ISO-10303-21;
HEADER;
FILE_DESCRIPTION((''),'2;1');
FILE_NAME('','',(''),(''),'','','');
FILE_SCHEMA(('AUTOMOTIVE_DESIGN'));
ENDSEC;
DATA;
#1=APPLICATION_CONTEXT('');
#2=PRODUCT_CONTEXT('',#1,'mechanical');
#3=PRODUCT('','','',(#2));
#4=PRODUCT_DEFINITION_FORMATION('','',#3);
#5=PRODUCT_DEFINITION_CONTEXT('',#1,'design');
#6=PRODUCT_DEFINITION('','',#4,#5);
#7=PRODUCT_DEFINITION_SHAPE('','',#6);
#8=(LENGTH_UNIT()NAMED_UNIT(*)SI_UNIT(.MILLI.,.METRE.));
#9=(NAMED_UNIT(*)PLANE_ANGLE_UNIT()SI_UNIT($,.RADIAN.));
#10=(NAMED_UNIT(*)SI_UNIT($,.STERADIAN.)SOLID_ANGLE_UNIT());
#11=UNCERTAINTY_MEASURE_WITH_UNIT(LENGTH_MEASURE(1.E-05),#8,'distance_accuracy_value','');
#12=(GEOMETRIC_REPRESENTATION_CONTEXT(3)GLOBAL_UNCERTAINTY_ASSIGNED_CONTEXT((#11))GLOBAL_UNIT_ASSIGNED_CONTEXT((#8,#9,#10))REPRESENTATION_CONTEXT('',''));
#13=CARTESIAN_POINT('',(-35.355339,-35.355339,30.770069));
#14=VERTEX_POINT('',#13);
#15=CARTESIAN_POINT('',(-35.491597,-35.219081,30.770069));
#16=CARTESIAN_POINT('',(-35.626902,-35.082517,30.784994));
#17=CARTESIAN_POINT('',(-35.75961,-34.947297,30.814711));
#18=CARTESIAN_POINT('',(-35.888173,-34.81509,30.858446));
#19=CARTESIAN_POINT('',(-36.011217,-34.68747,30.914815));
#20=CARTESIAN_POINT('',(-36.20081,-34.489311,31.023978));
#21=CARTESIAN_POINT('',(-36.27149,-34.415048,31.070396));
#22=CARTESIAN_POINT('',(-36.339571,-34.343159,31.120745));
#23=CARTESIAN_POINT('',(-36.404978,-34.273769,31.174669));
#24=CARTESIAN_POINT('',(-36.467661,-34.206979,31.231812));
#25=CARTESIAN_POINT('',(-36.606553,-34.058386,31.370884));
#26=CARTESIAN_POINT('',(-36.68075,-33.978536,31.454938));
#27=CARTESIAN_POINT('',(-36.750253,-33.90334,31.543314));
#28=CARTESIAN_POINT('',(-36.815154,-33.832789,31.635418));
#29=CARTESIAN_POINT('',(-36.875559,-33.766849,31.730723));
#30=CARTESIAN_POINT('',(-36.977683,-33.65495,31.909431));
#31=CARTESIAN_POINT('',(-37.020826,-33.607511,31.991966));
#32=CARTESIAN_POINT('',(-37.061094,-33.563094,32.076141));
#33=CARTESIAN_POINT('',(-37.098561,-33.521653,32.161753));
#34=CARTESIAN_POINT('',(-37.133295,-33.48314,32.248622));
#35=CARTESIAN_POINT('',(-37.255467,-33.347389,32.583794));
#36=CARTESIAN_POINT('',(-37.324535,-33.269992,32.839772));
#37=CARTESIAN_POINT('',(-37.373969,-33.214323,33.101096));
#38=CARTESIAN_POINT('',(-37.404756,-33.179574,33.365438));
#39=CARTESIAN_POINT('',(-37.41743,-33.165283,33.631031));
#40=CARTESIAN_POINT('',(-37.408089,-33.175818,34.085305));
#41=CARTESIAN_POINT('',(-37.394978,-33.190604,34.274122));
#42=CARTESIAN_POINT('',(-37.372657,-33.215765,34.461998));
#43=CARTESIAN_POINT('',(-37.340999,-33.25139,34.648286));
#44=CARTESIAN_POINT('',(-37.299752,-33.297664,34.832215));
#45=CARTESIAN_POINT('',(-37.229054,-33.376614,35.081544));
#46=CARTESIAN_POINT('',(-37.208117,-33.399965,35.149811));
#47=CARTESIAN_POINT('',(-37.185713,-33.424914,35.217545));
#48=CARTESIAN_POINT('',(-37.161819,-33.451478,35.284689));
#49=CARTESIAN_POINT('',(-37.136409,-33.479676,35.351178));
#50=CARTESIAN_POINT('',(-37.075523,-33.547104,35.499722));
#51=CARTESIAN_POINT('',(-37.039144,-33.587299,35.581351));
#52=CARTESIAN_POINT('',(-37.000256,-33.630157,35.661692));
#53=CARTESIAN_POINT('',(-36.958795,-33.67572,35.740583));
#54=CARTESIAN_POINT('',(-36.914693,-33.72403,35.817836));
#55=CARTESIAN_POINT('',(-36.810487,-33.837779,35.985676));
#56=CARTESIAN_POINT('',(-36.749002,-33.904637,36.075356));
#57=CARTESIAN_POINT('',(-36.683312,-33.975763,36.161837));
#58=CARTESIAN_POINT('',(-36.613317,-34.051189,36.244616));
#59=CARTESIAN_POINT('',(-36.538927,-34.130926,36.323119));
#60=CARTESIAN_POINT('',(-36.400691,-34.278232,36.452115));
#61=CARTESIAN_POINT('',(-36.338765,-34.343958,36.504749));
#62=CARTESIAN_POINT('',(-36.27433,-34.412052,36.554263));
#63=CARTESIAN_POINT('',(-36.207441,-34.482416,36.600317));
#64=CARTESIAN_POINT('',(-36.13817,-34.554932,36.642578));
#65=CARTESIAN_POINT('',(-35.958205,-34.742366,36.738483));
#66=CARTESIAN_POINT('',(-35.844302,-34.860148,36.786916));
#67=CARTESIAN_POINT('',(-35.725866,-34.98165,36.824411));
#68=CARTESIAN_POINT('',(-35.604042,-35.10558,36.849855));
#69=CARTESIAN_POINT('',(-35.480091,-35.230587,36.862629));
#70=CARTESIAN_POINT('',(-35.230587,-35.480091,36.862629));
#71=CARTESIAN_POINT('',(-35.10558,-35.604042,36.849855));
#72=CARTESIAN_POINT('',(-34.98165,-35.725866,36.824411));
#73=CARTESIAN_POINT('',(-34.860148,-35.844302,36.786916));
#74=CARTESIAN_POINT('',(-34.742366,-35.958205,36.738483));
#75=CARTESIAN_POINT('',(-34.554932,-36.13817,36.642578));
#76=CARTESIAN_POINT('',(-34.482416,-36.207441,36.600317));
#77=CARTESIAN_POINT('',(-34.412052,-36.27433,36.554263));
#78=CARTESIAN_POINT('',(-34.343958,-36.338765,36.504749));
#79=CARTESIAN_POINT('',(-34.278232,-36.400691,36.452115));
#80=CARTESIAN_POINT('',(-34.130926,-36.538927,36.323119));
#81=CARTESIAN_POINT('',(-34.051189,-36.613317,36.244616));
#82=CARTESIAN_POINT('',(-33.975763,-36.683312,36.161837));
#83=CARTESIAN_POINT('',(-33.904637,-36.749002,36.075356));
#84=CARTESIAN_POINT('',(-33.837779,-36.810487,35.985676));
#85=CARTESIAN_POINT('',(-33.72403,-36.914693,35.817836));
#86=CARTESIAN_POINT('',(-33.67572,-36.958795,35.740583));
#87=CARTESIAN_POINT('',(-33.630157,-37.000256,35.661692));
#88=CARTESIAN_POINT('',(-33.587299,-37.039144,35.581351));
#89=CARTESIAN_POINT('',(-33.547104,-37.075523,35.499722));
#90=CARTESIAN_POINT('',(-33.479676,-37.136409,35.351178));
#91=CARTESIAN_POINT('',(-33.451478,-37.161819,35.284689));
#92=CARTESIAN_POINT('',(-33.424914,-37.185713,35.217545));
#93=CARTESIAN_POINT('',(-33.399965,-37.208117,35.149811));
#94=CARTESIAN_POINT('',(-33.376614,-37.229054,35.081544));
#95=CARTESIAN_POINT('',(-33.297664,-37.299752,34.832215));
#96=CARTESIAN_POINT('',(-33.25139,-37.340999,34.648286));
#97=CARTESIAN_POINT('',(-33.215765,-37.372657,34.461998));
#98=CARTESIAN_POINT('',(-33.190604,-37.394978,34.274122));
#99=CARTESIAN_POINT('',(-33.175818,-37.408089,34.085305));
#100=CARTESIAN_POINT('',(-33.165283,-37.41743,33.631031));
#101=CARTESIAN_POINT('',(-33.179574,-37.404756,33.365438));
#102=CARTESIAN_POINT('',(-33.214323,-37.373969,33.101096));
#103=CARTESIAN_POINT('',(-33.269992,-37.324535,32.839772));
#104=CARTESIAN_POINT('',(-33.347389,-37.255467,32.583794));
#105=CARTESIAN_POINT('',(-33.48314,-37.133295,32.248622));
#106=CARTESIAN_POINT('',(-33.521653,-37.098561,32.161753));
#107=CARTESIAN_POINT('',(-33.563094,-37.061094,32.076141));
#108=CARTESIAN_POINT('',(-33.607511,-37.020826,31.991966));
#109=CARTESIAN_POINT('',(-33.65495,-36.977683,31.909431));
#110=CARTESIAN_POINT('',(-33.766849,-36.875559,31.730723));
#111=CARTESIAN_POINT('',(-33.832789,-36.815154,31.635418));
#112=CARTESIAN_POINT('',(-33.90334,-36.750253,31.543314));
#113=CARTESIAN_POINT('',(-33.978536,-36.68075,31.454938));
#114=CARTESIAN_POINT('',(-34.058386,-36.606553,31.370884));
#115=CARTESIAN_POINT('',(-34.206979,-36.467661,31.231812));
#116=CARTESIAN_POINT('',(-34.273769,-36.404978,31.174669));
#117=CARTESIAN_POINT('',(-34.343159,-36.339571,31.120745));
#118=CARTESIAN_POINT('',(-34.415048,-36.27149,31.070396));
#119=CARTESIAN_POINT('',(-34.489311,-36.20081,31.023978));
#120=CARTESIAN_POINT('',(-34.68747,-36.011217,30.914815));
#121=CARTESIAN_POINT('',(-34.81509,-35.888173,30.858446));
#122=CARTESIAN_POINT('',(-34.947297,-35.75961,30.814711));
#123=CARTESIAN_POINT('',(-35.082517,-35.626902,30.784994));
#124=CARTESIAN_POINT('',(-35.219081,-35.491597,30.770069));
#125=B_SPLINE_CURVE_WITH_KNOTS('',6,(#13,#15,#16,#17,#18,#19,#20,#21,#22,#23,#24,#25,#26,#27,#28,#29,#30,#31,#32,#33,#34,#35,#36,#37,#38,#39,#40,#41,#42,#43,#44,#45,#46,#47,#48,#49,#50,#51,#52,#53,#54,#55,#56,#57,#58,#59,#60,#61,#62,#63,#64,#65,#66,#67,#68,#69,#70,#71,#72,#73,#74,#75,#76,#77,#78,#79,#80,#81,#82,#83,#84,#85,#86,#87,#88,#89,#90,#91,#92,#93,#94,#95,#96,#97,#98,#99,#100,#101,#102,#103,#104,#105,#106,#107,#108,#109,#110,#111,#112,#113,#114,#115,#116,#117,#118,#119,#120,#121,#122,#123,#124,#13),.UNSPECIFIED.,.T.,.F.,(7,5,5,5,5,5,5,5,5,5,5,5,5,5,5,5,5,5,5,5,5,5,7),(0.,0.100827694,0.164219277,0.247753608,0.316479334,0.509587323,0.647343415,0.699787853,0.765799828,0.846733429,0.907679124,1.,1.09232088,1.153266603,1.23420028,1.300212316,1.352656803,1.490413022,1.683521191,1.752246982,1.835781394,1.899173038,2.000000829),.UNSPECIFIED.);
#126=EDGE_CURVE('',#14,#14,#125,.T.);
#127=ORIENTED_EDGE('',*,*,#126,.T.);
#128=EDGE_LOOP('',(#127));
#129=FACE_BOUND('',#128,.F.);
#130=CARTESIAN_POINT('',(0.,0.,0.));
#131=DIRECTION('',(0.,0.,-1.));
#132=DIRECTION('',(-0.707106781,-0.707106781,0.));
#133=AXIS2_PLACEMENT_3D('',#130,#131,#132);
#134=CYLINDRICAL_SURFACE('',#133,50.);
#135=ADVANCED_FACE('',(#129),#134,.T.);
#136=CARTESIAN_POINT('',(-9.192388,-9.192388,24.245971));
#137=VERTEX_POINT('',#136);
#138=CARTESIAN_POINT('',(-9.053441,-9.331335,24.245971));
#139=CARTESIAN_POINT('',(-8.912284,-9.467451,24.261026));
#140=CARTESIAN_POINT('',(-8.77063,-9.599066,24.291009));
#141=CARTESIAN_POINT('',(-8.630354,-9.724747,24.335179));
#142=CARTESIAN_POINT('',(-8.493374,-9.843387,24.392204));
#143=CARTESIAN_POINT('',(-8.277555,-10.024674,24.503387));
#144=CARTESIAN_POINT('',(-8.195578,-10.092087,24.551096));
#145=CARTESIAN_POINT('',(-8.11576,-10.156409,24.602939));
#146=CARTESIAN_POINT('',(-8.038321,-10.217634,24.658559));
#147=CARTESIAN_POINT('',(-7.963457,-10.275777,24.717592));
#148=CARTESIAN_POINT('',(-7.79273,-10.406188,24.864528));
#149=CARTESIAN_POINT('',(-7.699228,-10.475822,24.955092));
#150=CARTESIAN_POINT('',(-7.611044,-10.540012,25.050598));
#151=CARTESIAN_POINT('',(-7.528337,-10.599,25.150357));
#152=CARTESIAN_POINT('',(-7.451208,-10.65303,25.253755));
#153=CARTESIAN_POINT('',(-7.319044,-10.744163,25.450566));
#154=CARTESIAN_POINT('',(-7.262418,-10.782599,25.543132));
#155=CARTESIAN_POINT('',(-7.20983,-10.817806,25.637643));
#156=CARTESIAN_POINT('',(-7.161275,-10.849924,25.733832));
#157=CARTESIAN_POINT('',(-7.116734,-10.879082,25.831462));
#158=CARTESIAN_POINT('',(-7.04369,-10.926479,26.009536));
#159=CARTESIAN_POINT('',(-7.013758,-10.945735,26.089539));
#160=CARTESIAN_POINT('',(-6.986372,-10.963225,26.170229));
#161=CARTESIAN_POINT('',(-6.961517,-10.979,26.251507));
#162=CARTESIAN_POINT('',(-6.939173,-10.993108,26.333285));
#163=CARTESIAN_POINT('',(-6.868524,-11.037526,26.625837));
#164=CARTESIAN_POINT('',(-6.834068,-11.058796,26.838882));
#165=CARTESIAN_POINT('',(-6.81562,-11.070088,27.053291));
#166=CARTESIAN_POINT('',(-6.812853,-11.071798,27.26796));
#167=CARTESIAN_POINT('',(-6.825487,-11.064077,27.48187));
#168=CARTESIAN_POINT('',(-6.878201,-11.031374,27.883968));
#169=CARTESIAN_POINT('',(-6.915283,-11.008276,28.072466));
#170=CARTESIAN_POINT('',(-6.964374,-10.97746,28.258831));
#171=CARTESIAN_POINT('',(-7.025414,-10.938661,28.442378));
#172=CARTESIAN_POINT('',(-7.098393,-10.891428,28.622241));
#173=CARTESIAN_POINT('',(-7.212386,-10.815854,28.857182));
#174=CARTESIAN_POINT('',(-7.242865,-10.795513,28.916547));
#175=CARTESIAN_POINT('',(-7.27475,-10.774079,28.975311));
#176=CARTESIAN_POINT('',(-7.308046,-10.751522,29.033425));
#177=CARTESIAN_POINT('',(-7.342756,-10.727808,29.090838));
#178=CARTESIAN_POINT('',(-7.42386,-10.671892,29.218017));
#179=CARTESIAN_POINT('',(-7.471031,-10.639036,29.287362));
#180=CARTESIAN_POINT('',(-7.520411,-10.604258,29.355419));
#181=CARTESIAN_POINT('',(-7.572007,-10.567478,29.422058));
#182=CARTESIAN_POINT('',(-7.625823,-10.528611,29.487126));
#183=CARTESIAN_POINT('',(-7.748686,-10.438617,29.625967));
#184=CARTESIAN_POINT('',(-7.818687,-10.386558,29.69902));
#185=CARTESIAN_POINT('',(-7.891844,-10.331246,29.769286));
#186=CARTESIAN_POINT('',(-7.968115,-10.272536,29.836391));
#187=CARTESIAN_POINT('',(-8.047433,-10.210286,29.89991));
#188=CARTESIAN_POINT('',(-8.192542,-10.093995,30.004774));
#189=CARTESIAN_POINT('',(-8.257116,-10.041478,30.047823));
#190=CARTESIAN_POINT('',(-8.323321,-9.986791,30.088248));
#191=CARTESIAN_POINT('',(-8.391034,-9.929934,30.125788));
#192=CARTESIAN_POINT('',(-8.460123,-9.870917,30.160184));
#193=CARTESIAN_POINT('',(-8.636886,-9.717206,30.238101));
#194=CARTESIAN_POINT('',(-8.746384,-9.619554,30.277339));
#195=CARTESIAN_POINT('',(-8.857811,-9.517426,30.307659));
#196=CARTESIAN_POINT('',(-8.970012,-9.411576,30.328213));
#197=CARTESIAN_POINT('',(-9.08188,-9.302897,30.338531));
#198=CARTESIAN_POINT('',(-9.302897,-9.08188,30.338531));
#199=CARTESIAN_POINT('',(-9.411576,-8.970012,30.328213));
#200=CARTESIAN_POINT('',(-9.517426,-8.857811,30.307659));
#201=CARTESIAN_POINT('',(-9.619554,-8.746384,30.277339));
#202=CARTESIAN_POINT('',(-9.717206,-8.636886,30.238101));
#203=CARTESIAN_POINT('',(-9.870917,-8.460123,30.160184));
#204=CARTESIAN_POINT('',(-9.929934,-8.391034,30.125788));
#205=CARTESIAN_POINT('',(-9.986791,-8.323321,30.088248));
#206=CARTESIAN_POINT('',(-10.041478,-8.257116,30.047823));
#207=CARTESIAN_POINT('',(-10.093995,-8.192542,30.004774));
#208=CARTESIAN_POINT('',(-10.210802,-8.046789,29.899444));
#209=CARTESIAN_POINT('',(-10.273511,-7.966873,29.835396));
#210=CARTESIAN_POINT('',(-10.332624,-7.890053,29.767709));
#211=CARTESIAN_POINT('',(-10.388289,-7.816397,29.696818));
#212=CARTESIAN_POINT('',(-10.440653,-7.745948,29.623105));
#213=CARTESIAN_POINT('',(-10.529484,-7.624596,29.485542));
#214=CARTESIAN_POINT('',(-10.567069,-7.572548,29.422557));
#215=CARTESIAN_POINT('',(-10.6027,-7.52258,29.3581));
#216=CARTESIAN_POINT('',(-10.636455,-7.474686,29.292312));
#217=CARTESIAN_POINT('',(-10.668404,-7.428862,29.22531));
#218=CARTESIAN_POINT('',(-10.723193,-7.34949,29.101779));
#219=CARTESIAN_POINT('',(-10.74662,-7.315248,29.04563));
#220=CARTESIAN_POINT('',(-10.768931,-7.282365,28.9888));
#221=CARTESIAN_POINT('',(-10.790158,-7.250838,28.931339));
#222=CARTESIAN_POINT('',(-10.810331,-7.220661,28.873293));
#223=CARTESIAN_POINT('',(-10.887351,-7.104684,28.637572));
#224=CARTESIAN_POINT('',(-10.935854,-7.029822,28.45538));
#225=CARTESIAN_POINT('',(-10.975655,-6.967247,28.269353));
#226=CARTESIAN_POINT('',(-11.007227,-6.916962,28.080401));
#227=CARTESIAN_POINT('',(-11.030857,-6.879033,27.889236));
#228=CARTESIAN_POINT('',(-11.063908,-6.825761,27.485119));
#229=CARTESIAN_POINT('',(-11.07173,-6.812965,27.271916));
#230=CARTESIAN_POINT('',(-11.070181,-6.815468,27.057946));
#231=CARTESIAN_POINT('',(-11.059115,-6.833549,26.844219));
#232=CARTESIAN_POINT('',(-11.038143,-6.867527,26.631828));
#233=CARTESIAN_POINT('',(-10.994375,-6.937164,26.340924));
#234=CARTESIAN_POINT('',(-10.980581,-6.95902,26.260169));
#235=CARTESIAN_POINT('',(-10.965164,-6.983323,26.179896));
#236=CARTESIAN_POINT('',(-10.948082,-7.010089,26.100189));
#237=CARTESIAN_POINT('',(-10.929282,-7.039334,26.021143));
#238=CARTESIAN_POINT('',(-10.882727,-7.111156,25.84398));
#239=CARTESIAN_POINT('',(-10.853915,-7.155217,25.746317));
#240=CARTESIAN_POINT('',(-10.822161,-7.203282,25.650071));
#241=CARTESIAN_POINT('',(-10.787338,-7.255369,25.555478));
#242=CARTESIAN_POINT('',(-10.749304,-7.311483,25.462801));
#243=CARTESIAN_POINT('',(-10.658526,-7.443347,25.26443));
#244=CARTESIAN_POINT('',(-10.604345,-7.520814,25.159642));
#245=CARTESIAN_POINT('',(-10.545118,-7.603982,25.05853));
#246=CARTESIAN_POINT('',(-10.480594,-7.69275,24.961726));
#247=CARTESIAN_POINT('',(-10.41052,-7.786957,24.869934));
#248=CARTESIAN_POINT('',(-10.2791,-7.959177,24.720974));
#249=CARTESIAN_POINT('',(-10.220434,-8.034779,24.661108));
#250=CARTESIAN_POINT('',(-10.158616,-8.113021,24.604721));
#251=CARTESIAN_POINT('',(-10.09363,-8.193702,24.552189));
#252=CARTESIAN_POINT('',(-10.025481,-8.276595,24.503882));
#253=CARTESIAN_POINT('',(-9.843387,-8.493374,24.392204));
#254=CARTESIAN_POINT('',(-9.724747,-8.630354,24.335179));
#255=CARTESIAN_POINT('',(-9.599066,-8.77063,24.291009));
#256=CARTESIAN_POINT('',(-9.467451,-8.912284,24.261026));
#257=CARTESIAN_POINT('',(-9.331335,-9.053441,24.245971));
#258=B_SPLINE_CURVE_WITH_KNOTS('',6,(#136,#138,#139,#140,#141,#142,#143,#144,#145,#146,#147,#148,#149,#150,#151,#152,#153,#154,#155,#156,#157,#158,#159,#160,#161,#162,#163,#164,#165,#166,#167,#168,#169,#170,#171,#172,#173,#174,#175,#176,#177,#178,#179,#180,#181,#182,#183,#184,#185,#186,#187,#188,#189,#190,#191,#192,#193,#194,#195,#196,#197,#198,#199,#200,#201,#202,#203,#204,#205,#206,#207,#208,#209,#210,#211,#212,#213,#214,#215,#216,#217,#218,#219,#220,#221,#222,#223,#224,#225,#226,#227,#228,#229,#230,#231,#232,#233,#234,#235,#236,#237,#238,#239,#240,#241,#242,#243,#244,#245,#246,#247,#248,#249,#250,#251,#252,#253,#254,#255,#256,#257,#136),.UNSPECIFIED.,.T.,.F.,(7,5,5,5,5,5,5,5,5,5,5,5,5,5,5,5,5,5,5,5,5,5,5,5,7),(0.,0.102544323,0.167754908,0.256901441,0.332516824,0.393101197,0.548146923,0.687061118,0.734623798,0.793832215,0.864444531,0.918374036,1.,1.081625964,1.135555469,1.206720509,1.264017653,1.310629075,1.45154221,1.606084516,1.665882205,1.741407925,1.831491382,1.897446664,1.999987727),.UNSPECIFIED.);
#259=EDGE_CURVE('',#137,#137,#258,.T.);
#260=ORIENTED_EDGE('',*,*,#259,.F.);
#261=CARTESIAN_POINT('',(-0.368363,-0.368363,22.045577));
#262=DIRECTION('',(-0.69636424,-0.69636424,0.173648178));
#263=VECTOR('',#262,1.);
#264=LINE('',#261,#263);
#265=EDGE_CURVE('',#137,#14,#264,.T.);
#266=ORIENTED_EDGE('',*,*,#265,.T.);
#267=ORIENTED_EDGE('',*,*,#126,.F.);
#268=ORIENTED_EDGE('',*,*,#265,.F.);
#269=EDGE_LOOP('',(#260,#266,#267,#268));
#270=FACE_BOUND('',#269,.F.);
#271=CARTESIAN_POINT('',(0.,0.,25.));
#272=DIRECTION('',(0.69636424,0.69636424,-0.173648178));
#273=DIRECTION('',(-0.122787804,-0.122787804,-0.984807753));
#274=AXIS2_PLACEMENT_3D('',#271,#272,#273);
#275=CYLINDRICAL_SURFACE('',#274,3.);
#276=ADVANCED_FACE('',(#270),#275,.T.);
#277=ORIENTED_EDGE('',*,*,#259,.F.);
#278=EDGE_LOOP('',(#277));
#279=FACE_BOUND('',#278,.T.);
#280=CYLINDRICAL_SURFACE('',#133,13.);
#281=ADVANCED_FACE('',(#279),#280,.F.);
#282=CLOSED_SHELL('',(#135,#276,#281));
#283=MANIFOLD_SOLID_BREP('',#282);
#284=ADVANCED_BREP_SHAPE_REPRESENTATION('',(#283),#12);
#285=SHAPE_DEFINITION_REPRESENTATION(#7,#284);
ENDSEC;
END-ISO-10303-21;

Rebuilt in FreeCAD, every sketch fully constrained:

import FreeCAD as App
import Part
import Sketcher

doc = App.newDocument("Part")
body = doc.addObject("PartDesign::Body", "Body")

# Sketch on XY plane
sketch1 = body.newObject("Sketcher::SketchObject", "Sketch")
sketch1.AttachmentSupport = (doc.getObject("XY_Plane"), [""])
sketch1.MapMode = "FlatFace"
sketch1.addGeometry(Part.Circle(App.Vector(0, 0, 0), App.Vector(0, 0, 1), 50), False)
sketch1.addConstraint([
    Sketcher.Constraint("Coincident", 0, 3, -1, 1),
    Sketcher.Constraint("Diameter", 0, 100.0),
])
pad1 = body.newObject("PartDesign::Pad", "Pad")
pad1.Profile = sketch1
pad1.Length = 67
body2 = doc.addObject("PartDesign::Body", "Body001")

# Sketch on XY plane
sketch2 = body2.newObject("Sketcher::SketchObject", "Sketch001")
sketch2.AttachmentSupport = (doc.getObject("XY_Plane001"), [""])
sketch2.MapMode = "FlatFace"
sketch2.addGeometry(Part.Circle(App.Vector(0, 0, 0), App.Vector(0, 0, 1), 55), False)
sketch2.addConstraint([
    Sketcher.Constraint("Coincident", 0, 3, -1, 1),
    Sketcher.Constraint("Diameter", 0, 110.0),
])
pad2 = body2.newObject("PartDesign::Pad", "Pad001")
pad2.Profile = sketch2
pad2.Length = 67
doc.recompute()

boolean = body2.newObject("PartDesign::Boolean", "Boolean")
boolean.Type = "Cut"
boolean.addObjects([body])
body3 = doc.addObject("PartDesign::Body", "Body002")

# Sketch on XY plane
sketch3 = body3.newObject("Sketcher::SketchObject", "Sketch002")
sketch3.AttachmentSupport = (doc.getObject("XY_Plane002"), [""])
sketch3.MapMode = "FlatFace"
sketch3.addGeometry(Part.Circle(App.Vector(0, 0, 0), App.Vector(0, 0, 1), 13), False)
sketch3.addConstraint([
    Sketcher.Constraint("Coincident", 0, 3, -1, 1),
    Sketcher.Constraint("Diameter", 0, 26.0),
])
pad3 = body3.newObject("PartDesign::Pad", "Pad002")
pad3.Profile = sketch3
pad3.Length = 60
body4 = doc.addObject("PartDesign::Body", "Body003")

# Sketch on XY plane
sketch4 = body4.newObject("Sketcher::SketchObject", "Sketch003")
sketch4.AttachmentSupport = (doc.getObject("XY_Plane003"), [""])
sketch4.MapMode = "FlatFace"
sketch4.addGeometry(Part.Circle(App.Vector(0, 0, 0), App.Vector(0, 0, 1), 3), False)
sketch4.addConstraint([
    Sketcher.Constraint("Coincident", 0, 3, -1, 1),
    Sketcher.Constraint("Diameter", 0, 6.0),
])
pad4 = body4.newObject("PartDesign::Pad", "Pad003")
pad4.Profile = sketch4
pad4.Length = 54
body5 = doc.addObject("PartDesign::Body", "Body004")
doc.recompute()

body4.Placement = App.Placement(App.Vector(0, 0, 25), App.Rotation(App.Vector(0, 1, 0), 80))
boolean2 = body5.newObject("PartDesign::Boolean", "Boolean001")
boolean2.Type = "Fuse"
boolean2.addObjects([body4])
doc.recompute()

boolean3 = body5.newObject("PartDesign::Boolean", "Boolean002")
boolean3.Type = "Cut"
boolean3.addObjects([body3])
doc.recompute()

boolean4 = body5.newObject("PartDesign::Boolean", "Boolean003")
boolean4.Type = "Cut"
boolean4.addObjects([body2])
body6 = doc.addObject("PartDesign::Body", "Body005")
doc.recompute()

body5.Placement = App.Placement(App.Vector(0, 0, 0), App.Rotation(App.Vector(0, 0, 1), 45))
boolean5 = body6.newObject("PartDesign::Boolean", "Boolean004")
boolean5.Type = "Fuse"
boolean5.addObjects([body5])
body7 = doc.addObject("PartDesign::Body", "Body006")
doc.recompute()

mirroring = doc.addObject("Part::Mirroring", "Mirroring")
mirroring.Source = body6
mirroring.Base = App.Vector(0, 0, 0)
mirroring.Normal = App.Vector(1, 0, 0)
body7.BaseFeature = mirroring
doc.recompute()
body8 = doc.addObject("PartDesign::Body", "Body007")
doc.recompute()

mirroring2 = doc.addObject("Part::Mirroring", "Mirroring001")
mirroring2.Source = body7
mirroring2.Base = App.Vector(0, 0, 0)
mirroring2.Normal = App.Vector(0, 1, 0)
body8.BaseFeature = mirroring2
doc.recompute()
body6.Visibility = False
body7.Visibility = False
mirroring.Visibility = False
mirroring2.Visibility = False

doc.recompute()
